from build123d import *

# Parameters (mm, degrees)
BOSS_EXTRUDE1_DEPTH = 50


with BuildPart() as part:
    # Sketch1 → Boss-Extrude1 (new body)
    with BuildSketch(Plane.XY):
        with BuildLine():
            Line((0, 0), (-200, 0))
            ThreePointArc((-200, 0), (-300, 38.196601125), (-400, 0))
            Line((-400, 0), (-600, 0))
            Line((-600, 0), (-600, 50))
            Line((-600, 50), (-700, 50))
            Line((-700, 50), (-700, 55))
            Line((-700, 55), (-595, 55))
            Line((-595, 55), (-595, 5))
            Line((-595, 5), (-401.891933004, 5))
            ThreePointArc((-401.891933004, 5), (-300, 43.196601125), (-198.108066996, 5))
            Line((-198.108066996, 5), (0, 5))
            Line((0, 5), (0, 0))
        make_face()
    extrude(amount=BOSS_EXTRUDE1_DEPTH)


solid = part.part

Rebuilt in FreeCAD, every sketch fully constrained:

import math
import FreeCAD as App
import Part
import Sketcher
from FreeCAD import Vector
Q = App.Units.Quantity

doc = App.newDocument("Part")
body = doc.addObject("PartDesign::Body", "Body")

sketch1 = doc.addObject("Sketcher::SketchObject", "Sketch")
body.addObject(sketch1)
sketch1.AttachmentSupport = (doc.XY_Plane, [""])
sketch1.MapMode = "FlatFace"
sketch1.addGeometry([
    Part.LineSegment(Vector(-200, 0, 0), Vector(0, 0, 0)),
    Part.LineSegment(Vector(0, 0, 0), Vector(0, 5, 0)),
    Part.LineSegment(Vector(0, 5, 0), Vector(-198, 5, 0)),
    Part.ArcOfCircle(Part.Circle(Vector(-300, -112, 0), Vector(0, 0, 1), 155), math.radians(49), math.radians(131)),
    Part.LineSegment(Vector(-402, 5, 0), Vector(-595, 5, 0)),
    Part.LineSegment(Vector(-595, 5, 0), Vector(-595, 55, 0)),
    Part.LineSegment(Vector(-595, 55, 0), Vector(-700, 55, 0)),
    Part.LineSegment(Vector(-700, 55, 0), Vector(-700, 50, 0)),
    Part.LineSegment(Vector(-700, 50, 0), Vector(-600, 50, 0)),
    Part.LineSegment(Vector(-600, 50, 0), Vector(-600, 0, 0)),
    Part.LineSegment(Vector(-600, 0, 0), Vector(-400, 0, 0)),
    Part.ArcOfCircle(Part.Circle(Vector(-300, -112, 0), Vector(0, 0, 1), 150), math.radians(48), math.radians(132)),
], False)
sketch1.addConstraint([
    Sketcher.Constraint("Coincident", 0, 2, 1, 1),
    Sketcher.Constraint("Coincident", 1, 2, 2, 1),
    Sketcher.Constraint("Coincident", 2, 2, 3, 1),
    Sketcher.Constraint("Coincident", 3, 2, 4, 1),
    Sketcher.Constraint("Coincident", 4, 2, 5, 1),
    Sketcher.Constraint("Coincident", 5, 2, 6, 1),
    Sketcher.Constraint("Coincident", 6, 2, 7, 1),
    Sketcher.Constraint("Coincident", 7, 2, 8, 1),
    Sketcher.Constraint("Coincident", 8, 2, 9, 1),
    Sketcher.Constraint("Coincident", 9, 2, 10, 1),
    Sketcher.Constraint("Coincident", 10, 2, 11, 2),
    Sketcher.Constraint("Coincident", 11, 1, 0, 1),
    Sketcher.Constraint("Horizontal", 0),
    Sketcher.Constraint("Vertical", 1),
    Sketcher.Constraint("Horizontal", 2),
    Sketcher.Constraint("Horizontal", 4),
    Sketcher.Constraint("Vertical", 5),
    Sketcher.Constraint("Horizontal", 6),
    Sketcher.Constraint("Vertical", 7),
    Sketcher.Constraint("Horizontal", 8),
    Sketcher.Constraint("Vertical", 9),
    Sketcher.Constraint("Horizontal", 10),
    Sketcher.Constraint("Coincident", 0, 2, -1, 1),
    Sketcher.Constraint("Coincident", 11, 3, 3, 3),
    Sketcher.Constraint("PointOnObject", 9, 2, -1),
    Sketcher.Constraint("Horizontal", 2, 2, 3, 2),
    Sketcher.Constraint("Equal", 0, 10),
    Sketcher.Constraint("Equal", 1, 7),
    Sketcher.Constraint("Radius", 3, Q("155 mm")),
    Sketcher.Constraint("Radius", 11, Q("150 mm")),
    Sketcher.Constraint("DistanceX", 0, 1, 0, 2, Q("200 mm")),
    Sketcher.Constraint("DistanceX", 6, 2, 6, 1, Q("105 mm")),
    Sketcher.Constraint("DistanceX", 8, 1, 8, 2, Q("100 mm")),
    Sketcher.Constraint("DistanceY", 1, 1, 1, 2, Q("5 mm")),
    Sketcher.Constraint("DistanceY", 5, 1, 5, 2, Q("50 mm")),
    Sketcher.Constraint("DistanceX", 3, 3, -1, 1, Q("300 mm")),
])
pad1 = doc.addObject("PartDesign::Pad", "Pad")
body.addObject(pad1)
pad1.Profile = sketch1
pad1.Length = 50

doc.recompute()
